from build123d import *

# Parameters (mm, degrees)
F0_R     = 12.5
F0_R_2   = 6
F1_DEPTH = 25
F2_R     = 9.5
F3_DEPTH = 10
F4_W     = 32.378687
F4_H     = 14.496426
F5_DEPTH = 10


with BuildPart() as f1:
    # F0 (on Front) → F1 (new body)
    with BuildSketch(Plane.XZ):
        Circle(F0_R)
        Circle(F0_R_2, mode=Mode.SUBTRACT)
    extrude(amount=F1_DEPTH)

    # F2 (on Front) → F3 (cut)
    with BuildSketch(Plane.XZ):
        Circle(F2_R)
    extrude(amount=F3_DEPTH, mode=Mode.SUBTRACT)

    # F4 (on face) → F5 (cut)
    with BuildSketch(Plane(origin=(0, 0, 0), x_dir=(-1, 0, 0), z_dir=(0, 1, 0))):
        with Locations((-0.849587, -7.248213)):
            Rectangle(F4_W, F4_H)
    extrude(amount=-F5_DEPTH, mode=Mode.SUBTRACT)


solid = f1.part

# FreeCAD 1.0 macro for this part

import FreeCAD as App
import Part
import Sketcher
from FreeCAD import Vector

doc = App.newDocument("Part")
body = doc.addObject("PartDesign::Body", "Body")

sketch1 = body.newObject("Sketcher::SketchObject", "Sketch")
sketch1.AttachmentSupport = (doc.getObject("XZ_Plane"), [""])
sketch1.MapMode = "FlatFace"
sketch1.addGeometry([
    Part.Circle(Vector(0, 0, 0), Vector(0, 0, 1), 12),
    Part.Circle(Vector(0, 0, 0), Vector(0, 0, 1), 6),
], False)
sketch1.addConstraint([
    Sketcher.Constraint("Coincident", 0, 3, -1, 1),
    Sketcher.Constraint("Coincident", 1, 3, -1, 1),
    Sketcher.Constraint("Diameter", 0, 25.0),
    Sketcher.Constraint("Diameter", 1, 12.0),
])
pad1 = body.newObject("PartDesign::Pad", "Pad")
pad1.Profile = sketch1
pad1.Length = 25

sketch2 = body.newObject("Sketcher::SketchObject", "Sketch001")
sketch2.AttachmentSupport = (doc.getObject("XZ_Plane"), [""])
sketch2.MapMode = "FlatFace"
sketch2.addGeometry(Part.Circle(Vector(0, 0, 0), Vector(0, 0, 1), 10), False)
sketch2.addConstraint([
    Sketcher.Constraint("Coincident", 0, 3, -1, 1),
    Sketcher.Constraint("Diameter", 0, 19.0),
])
pocket1 = body.newObject("PartDesign::Pocket", "Pocket")
pocket1.Profile = sketch2
pocket1.Length = 10
pocket1.Reversed = True

sketch3 = body.newObject("Sketcher::SketchObject", "Sketch002")
sketch3.AttachmentSupport = (doc.getObject("XZ_Plane"), [""])
sketch3.MapMode = "FlatFace"
sketch3.addGeometry([
    Part.LineSegment(Vector(17, 0, 0), Vector(17, -14, 0)),
    Part.LineSegment(Vector(17, -14, 0), Vector(-15, -14, 0)),
    Part.LineSegment(Vector(-15, -14, 0), Vector(-15, 0, 0)),
    Part.LineSegment(Vector(-15, 0, 0), Vector(17, 0, 0)),
], False)
sketch3.addConstraint([
    Sketcher.Constraint("Coincident", 0, 2, 1, 1),
    Sketcher.Constraint("Coincident", 1, 2, 2, 1),
    Sketcher.Constraint("Coincident", 2, 2, 3, 1),
    Sketcher.Constraint("Coincident", 3, 2, 0, 1),
    Sketcher.Constraint("Vertical", 0),
    Sketcher.Constraint("Horizontal", 1),
    Sketcher.Constraint("Vertical", 2),
    Sketcher.Constraint("Horizontal", 3),
    Sketcher.Constraint("PointOnObject", 2, 2, -1),
    Sketcher.Constraint("DistanceX", 1, 2, 1, 1, 32.378687),
    Sketcher.Constraint("DistanceY", 0, 2, 0, 1, 14.496426),
    Sketcher.Constraint("DistanceX", -1, 1, 0, 2, 17.03893),
])
pocket2 = body.newObject("PartDesign::Pocket", "Pocket001")
pocket2.Profile = sketch3
pocket2.Length = 10
pocket2.Reversed = True

doc.recompute()
